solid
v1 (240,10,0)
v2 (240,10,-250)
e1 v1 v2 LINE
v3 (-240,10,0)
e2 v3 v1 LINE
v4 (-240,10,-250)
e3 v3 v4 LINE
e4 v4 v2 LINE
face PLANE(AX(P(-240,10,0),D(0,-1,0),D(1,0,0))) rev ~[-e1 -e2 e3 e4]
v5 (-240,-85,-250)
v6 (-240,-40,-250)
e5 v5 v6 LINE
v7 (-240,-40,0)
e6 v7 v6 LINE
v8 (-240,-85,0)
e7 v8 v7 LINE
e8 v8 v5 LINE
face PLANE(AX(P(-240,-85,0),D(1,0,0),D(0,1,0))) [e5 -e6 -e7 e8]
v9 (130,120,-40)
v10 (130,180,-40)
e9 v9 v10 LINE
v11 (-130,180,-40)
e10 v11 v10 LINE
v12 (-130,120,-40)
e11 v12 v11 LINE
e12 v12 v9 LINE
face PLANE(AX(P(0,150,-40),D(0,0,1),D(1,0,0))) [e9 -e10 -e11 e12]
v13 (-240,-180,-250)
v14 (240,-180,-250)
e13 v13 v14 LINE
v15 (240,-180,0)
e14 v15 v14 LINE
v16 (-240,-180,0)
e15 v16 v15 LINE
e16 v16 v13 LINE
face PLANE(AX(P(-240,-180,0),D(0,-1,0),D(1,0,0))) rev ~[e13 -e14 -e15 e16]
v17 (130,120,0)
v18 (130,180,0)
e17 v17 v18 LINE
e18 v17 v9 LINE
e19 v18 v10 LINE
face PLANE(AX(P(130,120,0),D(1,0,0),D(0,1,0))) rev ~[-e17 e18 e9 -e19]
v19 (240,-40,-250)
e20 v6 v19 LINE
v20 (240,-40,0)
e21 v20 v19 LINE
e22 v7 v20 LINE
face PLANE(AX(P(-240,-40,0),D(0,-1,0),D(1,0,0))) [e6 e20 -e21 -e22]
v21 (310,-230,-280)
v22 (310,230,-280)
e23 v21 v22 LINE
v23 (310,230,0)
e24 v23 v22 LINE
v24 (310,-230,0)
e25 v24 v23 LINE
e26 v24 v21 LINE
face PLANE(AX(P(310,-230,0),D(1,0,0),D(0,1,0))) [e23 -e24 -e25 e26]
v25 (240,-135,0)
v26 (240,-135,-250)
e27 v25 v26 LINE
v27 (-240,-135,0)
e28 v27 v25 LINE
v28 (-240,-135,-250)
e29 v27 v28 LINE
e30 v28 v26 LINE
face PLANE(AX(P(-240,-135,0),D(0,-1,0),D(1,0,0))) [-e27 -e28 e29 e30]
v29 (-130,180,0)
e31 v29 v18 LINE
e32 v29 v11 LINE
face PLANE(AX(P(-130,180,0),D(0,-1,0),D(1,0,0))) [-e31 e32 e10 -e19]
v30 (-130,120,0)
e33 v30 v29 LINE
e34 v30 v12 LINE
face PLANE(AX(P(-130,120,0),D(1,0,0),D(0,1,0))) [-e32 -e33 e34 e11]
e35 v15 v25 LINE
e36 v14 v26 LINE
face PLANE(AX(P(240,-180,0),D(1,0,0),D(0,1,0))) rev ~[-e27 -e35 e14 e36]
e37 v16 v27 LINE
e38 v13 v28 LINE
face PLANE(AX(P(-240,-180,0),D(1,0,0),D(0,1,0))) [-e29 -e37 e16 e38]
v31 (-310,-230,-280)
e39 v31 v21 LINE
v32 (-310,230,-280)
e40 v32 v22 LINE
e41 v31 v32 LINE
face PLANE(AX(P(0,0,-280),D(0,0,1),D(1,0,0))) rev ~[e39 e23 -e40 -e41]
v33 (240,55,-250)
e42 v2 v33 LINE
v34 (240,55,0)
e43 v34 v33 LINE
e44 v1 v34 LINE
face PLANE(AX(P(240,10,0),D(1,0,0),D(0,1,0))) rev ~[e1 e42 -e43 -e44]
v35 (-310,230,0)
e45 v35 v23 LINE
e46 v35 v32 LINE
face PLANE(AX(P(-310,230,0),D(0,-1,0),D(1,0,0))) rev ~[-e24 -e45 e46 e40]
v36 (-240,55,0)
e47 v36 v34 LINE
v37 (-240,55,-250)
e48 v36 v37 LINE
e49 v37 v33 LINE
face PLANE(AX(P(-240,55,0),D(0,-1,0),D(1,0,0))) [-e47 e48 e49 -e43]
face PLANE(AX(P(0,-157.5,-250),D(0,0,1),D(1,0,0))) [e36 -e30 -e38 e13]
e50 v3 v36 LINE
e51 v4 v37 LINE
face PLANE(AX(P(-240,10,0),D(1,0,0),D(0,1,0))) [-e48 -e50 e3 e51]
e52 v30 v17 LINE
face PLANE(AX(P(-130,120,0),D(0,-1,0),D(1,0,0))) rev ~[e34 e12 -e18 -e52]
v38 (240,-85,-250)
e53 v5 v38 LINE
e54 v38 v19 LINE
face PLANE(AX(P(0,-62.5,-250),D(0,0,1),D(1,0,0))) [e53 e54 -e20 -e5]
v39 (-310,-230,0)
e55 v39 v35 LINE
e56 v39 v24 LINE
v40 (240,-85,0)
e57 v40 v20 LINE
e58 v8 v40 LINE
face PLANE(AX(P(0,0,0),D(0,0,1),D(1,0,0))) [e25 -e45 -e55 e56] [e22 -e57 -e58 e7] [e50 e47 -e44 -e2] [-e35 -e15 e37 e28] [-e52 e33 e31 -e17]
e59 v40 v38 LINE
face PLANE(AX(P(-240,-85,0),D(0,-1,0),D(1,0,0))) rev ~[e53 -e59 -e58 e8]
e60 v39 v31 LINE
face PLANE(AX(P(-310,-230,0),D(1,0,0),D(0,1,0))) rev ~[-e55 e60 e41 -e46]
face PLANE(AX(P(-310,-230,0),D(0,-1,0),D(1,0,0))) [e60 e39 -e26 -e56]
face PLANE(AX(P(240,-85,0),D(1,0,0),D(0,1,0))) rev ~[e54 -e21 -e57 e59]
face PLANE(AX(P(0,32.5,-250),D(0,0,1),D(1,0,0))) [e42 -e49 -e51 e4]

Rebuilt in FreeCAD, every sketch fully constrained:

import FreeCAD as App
import Part
import Sketcher

V = App.Vector
Q = App.Units.Quantity

doc = App.newDocument("Part")
body = doc.addObject("PartDesign::Body", "Body")

# Sketch on XY plane
sketch1 = body.newObject("Sketcher::SketchObject", "Sketch")
sketch1.AttachmentSupport = (doc.getObject("XY_Plane"), [""])
sketch1.MapMode = "FlatFace"
sketch1.addGeometry([
    Part.LineSegment(V(-310, 230, 0), V(-310, -230, 0)),
    Part.LineSegment(V(-310, -230, 0), V(310, -230, 0)),
    Part.LineSegment(V(310, -230, 0), V(310, 230, 0)),
    Part.LineSegment(V(310, 230, 0), V(-310, 230, 0)),
], False)
sketch1.addConstraint([
    Sketcher.Constraint("Coincident", 0, 2, 1, 1),
    Sketcher.Constraint("Coincident", 1, 2, 2, 1),
    Sketcher.Constraint("Coincident", 2, 2, 3, 1),
    Sketcher.Constraint("Coincident", 3, 2, 0, 1),
    Sketcher.Constraint("Vertical", 0),
    Sketcher.Constraint("Horizontal", 1),
    Sketcher.Constraint("Vertical", 2),
    Sketcher.Constraint("Horizontal", 3),
    Sketcher.Constraint("Symmetric", 0, 2, 2, 2, -1, 1),
    Sketcher.Constraint("DistanceX", 1, 1, 1, 2, Q("620 mm")),
    Sketcher.Constraint("DistanceY", 0, 2, 0, 1, Q("460 mm")),
])
pad1 = body.newObject("PartDesign::Pad", "Pad")
pad1.Profile = sketch1
pad1.Length = 280
pad1.Reversed = True

# Sketch on XY plane
sketch2 = body.newObject("Sketcher::SketchObject", "Sketch001")
sketch2.AttachmentSupport = (doc.getObject("XY_Plane"), [""])
sketch2.MapMode = "FlatFace"
sketch2.addGeometry([
    Part.LineSegment(V(-240, 55, 0), V(-240, 10, 0)),  # 0
    Part.LineSegment(V(-240, 10, 0), V(240, 10, 0)),  # 1
    Part.LineSegment(V(240, 10, 0), V(240, 55, 0)),  # 2
    Part.LineSegment(V(240, 55, 0), V(-240, 55, 0)),  # 3
    Part.LineSegment(V(-240, -40, 0), V(-240, -85, 0)),  # 4
    Part.LineSegment(V(-240, -85, 0), V(240, -85, 0)),  # 5
    Part.LineSegment(V(240, -85, 0), V(240, -40, 0)),  # 6
    Part.LineSegment(V(240, -40, 0), V(-240, -40, 0)),  # 7
    Part.LineSegment(V(-240, -135, 0), V(-240, -180, 0)),  # 8
    Part.LineSegment(V(-240, -180, 0), V(240, -180, 0)),  # 9
    Part.LineSegment(V(240, -180, 0), V(240, -135, 0)),  # 10
    Part.LineSegment(V(240, -135, 0), V(-240, -135, 0)),  # 11
], False)
sketch2.addConstraint([
    Sketcher.Constraint("Coincident", 0, 2, 1, 1),
    Sketcher.Constraint("Coincident", 1, 2, 2, 1),
    Sketcher.Constraint("Coincident", 2, 2, 3, 1),
    Sketcher.Constraint("Coincident", 3, 2, 0, 1),
    Sketcher.Constraint("Coincident", 4, 2, 5, 1),
    Sketcher.Constraint("Coincident", 5, 2, 6, 1),
    Sketcher.Constraint("Coincident", 6, 2, 7, 1),
    Sketcher.Constraint("Coincident", 7, 2, 4, 1),
    Sketcher.Constraint("Coincident", 8, 2, 9, 1),
    Sketcher.Constraint("Coincident", 9, 2, 10, 1),
    Sketcher.Constraint("Coincident", 10, 2, 11, 1),
    Sketcher.Constraint("Coincident", 11, 2, 8, 1),
    Sketcher.Constraint("Vertical", 0),
    Sketcher.Constraint("Horizontal", 1),
    Sketcher.Constraint("Vertical", 2),
    Sketcher.Constraint("Horizontal", 3),
    Sketcher.Constraint("Vertical", 4),
    Sketcher.Constraint("Horizontal", 5),
    Sketcher.Constraint("Vertical", 6),
    Sketcher.Constraint("Horizontal", 7),
    Sketcher.Constraint("Vertical", 8),
    Sketcher.Constraint("Horizontal", 9),
    Sketcher.Constraint("Vertical", 10),
    Sketcher.Constraint("Horizontal", 11),
    Sketcher.Constraint("Vertical", 3, 2, 4, 2),
    Sketcher.Constraint("Vertical", 2, 2, 5, 2),
    Sketcher.Constraint("Vertical", 7, 2, 8, 2),
    Sketcher.Constraint("Vertical", 6, 2, 9, 2),
    Sketcher.Constraint("Equal", 2, 4),
    Sketcher.Constraint("Equal", 6, 8),
    Sketcher.Constraint("DistanceX", 1, 1, 1, 2, Q("480 mm")),
    Sketcher.Constraint("DistanceY", 0, 2, 0, 1, Q("45 mm")),
    Sketcher.Constraint("DistanceX", 0, 2, -1, 1, Q("240 mm")),
    Sketcher.Constraint("DistanceY", -1, 1, 0, 2, Q("10 mm")),
    Sketcher.Constraint("DistanceY", 4, 2, -1, 1, Q("85 mm")),
    Sketcher.Constraint("DistanceY", 8, 2, -1, 1, Q("180 mm")),
])
pocket1 = body.newObject("PartDesign::Pocket", "Pocket")
pocket1.Profile = sketch2
pocket1.Length = 250

# Sketch on XY plane
sketch3 = body.newObject("Sketcher::SketchObject", "Sketch002")
sketch3.AttachmentSupport = (doc.getObject("XY_Plane"), [""])
sketch3.MapMode = "FlatFace"
sketch3.addGeometry([
    Part.LineSegment(V(-130, 180, 0), V(-130, 120, 0)),
    Part.LineSegment(V(-130, 120, 0), V(130, 120, 0)),
    Part.LineSegment(V(130, 120, 0), V(130, 180, 0)),
    Part.LineSegment(V(130, 180, 0), V(-130, 180, 0)),
], False)
sketch3.addConstraint([
    Sketcher.Constraint("Coincident", 0, 2, 1, 1),
    Sketcher.Constraint("Coincident", 1, 2, 2, 1),
    Sketcher.Constraint("Coincident", 2, 2, 3, 1),
    Sketcher.Constraint("Coincident", 3, 2, 0, 1),
    Sketcher.Constraint("Vertical", 0),
    Sketcher.Constraint("Horizontal", 1),
    Sketcher.Constraint("Vertical", 2),
    Sketcher.Constraint("Horizontal", 3),
    Sketcher.Constraint("DistanceX", 1, 1, 1, 2, Q("260 mm")),
    Sketcher.Constraint("DistanceY", 0, 2, 0, 1, Q("60 mm")),
    Sketcher.Constraint("DistanceX", 0, 2, -1, 1, Q("130 mm")),
    Sketcher.Constraint("DistanceY", -1, 1, 0, 2, Q("120 mm")),
])
pocket2 = body.newObject("PartDesign::Pocket", "Pocket001")
pocket2.Profile = sketch3
pocket2.Length = 40

doc.recompute()
